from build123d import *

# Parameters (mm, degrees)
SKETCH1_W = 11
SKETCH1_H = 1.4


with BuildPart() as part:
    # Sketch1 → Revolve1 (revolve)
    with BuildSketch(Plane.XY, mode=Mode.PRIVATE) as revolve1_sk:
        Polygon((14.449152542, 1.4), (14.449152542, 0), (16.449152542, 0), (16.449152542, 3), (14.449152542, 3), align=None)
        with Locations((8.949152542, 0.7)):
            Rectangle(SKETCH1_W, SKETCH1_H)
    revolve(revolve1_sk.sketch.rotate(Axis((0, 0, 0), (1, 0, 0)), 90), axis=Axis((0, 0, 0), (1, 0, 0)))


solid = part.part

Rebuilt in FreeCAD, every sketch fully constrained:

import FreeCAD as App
import Part
import Sketcher

V = App.Vector

doc = App.newDocument("Part")
body = doc.addObject("PartDesign::Body", "Body")

# Sketch on XY plane
sketch1 = doc.addObject("Sketcher::SketchObject", "Sketch")
body.addObject(sketch1)
sketch1.AttachmentSupport = (doc.XY_Plane, [""])
sketch1.MapMode = "FlatFace"
sketch1.addGeometry([
    Part.LineSegment(V(16.4, 0, 0), V(16.4, 3, 0)),  # 0
    Part.LineSegment(V(16.4, 3, 0), V(14.4, 3, 0)),  # 1
    Part.LineSegment(V(14.4, 3, 0), V(14.4, 1.4, 0)),  # 2
    Part.LineSegment(V(14.4, 1.4, 0), V(3.4, 1.4, 0)),  # 3
    Part.LineSegment(V(3.4, 1.4, 0), V(3.4, 0, 0)),  # 4
    Part.LineSegment(V(3.4, 0, 0), V(16.4, 0, 0)),  # 5
], False)
sketch1.addConstraint([
    Sketcher.Constraint("Coincident", 0, 2, 1, 1),
    Sketcher.Constraint("Coincident", 1, 2, 2, 1),
    Sketcher.Constraint("Coincident", 2, 2, 3, 1),
    Sketcher.Constraint("Coincident", 3, 2, 4, 1),
    Sketcher.Constraint("Coincident", 4, 2, 5, 1),
    Sketcher.Constraint("Coincident", 5, 2, 0, 1),
    Sketcher.Constraint("Vertical", 0),
    Sketcher.Constraint("Horizontal", 1),
    Sketcher.Constraint("Vertical", 2),
    Sketcher.Constraint("Horizontal", 3),
    Sketcher.Constraint("Vertical", 4),
    Sketcher.Constraint("Horizontal", 5),
    Sketcher.Constraint("PointOnObject", 4, 2, -1),
    Sketcher.Constraint("DistanceX", 1, 2, 1, 1, 2.0),
    Sketcher.Constraint("DistanceX", 3, 2, 3, 1, 11.0),
    Sketcher.Constraint("DistanceY", 0, 1, 0, 2, 3.0),
    Sketcher.Constraint("DistanceY", 2, 2, 2, 1, 1.6),
    Sketcher.Constraint("DistanceX", -1, 1, 0, 2, 16.449153),
])
revolution = doc.addObject("PartDesign::Revolution", "Revolution")
body.addObject(revolution)
revolution.Profile = sketch1
revolution.ReferenceAxis = (sketch1, ["H_Axis"])
revolution.Angle = 360

doc.recompute()
